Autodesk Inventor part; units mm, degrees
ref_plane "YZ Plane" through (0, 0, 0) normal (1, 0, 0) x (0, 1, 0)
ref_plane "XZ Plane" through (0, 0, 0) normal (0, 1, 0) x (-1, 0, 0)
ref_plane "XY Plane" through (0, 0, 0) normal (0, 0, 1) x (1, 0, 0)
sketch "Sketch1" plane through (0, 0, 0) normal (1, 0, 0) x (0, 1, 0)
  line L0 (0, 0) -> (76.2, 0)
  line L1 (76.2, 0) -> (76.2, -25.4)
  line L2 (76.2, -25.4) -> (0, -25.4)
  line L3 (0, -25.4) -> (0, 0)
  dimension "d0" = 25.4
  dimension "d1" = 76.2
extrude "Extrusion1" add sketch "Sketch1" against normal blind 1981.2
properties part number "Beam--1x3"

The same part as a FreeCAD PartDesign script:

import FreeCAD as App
import Part
import Sketcher
Q = App.Units.Quantity


def add_polygon(sketch, points):
    """Adds a closed chain of lines whose ends are joined by coincident constraints."""
    first, n = sketch.GeometryCount, len(points)
    for a, b in zip(points, points[1:] + points[:1]):
        sketch.addGeometry(Part.LineSegment(App.Vector(*a, 0), App.Vector(*b, 0)), False)
    for i in range(n):
        sketch.addConstraint(Sketcher.Constraint("Coincident", first + i, 2, first + (i + 1) % n, 1))

doc = App.newDocument("Part")
body = doc.addObject("PartDesign::Body", "Body")

# Sketch on YZ plane
sketch1 = body.newObject("Sketcher::SketchObject", "Sketch")
sketch1.AttachmentSupport = (doc.getObject("YZ_Plane"), [""])
sketch1.MapMode = "FlatFace"
add_polygon(sketch1, [(76, 0), (0, 0), (0, -25), (76, -25)])  # lines 0-3
sketch1.addConstraint(Sketcher.Constraint("Horizontal", 0))
sketch1.addConstraint(Sketcher.Constraint("Vertical", 1))
sketch1.addConstraint(Sketcher.Constraint("Horizontal", 2))
sketch1.addConstraint(Sketcher.Constraint("Vertical", 3))
sketch1.addConstraint(Sketcher.Constraint("Coincident", 0, 2, -1, 1))
sketch1.addConstraint(Sketcher.Constraint("DistanceX", 0, 2, 0, 1, Q("3 in")))
sketch1.addConstraint(Sketcher.Constraint("DistanceY", 1, 2, 1, 1, Q("1 in")))
pad1 = body.newObject("PartDesign::Pad", "Pad")
pad1.Profile = sketch1
pad1.Length = Q("78 in")
pad1.Reversed = True

doc.recompute()
